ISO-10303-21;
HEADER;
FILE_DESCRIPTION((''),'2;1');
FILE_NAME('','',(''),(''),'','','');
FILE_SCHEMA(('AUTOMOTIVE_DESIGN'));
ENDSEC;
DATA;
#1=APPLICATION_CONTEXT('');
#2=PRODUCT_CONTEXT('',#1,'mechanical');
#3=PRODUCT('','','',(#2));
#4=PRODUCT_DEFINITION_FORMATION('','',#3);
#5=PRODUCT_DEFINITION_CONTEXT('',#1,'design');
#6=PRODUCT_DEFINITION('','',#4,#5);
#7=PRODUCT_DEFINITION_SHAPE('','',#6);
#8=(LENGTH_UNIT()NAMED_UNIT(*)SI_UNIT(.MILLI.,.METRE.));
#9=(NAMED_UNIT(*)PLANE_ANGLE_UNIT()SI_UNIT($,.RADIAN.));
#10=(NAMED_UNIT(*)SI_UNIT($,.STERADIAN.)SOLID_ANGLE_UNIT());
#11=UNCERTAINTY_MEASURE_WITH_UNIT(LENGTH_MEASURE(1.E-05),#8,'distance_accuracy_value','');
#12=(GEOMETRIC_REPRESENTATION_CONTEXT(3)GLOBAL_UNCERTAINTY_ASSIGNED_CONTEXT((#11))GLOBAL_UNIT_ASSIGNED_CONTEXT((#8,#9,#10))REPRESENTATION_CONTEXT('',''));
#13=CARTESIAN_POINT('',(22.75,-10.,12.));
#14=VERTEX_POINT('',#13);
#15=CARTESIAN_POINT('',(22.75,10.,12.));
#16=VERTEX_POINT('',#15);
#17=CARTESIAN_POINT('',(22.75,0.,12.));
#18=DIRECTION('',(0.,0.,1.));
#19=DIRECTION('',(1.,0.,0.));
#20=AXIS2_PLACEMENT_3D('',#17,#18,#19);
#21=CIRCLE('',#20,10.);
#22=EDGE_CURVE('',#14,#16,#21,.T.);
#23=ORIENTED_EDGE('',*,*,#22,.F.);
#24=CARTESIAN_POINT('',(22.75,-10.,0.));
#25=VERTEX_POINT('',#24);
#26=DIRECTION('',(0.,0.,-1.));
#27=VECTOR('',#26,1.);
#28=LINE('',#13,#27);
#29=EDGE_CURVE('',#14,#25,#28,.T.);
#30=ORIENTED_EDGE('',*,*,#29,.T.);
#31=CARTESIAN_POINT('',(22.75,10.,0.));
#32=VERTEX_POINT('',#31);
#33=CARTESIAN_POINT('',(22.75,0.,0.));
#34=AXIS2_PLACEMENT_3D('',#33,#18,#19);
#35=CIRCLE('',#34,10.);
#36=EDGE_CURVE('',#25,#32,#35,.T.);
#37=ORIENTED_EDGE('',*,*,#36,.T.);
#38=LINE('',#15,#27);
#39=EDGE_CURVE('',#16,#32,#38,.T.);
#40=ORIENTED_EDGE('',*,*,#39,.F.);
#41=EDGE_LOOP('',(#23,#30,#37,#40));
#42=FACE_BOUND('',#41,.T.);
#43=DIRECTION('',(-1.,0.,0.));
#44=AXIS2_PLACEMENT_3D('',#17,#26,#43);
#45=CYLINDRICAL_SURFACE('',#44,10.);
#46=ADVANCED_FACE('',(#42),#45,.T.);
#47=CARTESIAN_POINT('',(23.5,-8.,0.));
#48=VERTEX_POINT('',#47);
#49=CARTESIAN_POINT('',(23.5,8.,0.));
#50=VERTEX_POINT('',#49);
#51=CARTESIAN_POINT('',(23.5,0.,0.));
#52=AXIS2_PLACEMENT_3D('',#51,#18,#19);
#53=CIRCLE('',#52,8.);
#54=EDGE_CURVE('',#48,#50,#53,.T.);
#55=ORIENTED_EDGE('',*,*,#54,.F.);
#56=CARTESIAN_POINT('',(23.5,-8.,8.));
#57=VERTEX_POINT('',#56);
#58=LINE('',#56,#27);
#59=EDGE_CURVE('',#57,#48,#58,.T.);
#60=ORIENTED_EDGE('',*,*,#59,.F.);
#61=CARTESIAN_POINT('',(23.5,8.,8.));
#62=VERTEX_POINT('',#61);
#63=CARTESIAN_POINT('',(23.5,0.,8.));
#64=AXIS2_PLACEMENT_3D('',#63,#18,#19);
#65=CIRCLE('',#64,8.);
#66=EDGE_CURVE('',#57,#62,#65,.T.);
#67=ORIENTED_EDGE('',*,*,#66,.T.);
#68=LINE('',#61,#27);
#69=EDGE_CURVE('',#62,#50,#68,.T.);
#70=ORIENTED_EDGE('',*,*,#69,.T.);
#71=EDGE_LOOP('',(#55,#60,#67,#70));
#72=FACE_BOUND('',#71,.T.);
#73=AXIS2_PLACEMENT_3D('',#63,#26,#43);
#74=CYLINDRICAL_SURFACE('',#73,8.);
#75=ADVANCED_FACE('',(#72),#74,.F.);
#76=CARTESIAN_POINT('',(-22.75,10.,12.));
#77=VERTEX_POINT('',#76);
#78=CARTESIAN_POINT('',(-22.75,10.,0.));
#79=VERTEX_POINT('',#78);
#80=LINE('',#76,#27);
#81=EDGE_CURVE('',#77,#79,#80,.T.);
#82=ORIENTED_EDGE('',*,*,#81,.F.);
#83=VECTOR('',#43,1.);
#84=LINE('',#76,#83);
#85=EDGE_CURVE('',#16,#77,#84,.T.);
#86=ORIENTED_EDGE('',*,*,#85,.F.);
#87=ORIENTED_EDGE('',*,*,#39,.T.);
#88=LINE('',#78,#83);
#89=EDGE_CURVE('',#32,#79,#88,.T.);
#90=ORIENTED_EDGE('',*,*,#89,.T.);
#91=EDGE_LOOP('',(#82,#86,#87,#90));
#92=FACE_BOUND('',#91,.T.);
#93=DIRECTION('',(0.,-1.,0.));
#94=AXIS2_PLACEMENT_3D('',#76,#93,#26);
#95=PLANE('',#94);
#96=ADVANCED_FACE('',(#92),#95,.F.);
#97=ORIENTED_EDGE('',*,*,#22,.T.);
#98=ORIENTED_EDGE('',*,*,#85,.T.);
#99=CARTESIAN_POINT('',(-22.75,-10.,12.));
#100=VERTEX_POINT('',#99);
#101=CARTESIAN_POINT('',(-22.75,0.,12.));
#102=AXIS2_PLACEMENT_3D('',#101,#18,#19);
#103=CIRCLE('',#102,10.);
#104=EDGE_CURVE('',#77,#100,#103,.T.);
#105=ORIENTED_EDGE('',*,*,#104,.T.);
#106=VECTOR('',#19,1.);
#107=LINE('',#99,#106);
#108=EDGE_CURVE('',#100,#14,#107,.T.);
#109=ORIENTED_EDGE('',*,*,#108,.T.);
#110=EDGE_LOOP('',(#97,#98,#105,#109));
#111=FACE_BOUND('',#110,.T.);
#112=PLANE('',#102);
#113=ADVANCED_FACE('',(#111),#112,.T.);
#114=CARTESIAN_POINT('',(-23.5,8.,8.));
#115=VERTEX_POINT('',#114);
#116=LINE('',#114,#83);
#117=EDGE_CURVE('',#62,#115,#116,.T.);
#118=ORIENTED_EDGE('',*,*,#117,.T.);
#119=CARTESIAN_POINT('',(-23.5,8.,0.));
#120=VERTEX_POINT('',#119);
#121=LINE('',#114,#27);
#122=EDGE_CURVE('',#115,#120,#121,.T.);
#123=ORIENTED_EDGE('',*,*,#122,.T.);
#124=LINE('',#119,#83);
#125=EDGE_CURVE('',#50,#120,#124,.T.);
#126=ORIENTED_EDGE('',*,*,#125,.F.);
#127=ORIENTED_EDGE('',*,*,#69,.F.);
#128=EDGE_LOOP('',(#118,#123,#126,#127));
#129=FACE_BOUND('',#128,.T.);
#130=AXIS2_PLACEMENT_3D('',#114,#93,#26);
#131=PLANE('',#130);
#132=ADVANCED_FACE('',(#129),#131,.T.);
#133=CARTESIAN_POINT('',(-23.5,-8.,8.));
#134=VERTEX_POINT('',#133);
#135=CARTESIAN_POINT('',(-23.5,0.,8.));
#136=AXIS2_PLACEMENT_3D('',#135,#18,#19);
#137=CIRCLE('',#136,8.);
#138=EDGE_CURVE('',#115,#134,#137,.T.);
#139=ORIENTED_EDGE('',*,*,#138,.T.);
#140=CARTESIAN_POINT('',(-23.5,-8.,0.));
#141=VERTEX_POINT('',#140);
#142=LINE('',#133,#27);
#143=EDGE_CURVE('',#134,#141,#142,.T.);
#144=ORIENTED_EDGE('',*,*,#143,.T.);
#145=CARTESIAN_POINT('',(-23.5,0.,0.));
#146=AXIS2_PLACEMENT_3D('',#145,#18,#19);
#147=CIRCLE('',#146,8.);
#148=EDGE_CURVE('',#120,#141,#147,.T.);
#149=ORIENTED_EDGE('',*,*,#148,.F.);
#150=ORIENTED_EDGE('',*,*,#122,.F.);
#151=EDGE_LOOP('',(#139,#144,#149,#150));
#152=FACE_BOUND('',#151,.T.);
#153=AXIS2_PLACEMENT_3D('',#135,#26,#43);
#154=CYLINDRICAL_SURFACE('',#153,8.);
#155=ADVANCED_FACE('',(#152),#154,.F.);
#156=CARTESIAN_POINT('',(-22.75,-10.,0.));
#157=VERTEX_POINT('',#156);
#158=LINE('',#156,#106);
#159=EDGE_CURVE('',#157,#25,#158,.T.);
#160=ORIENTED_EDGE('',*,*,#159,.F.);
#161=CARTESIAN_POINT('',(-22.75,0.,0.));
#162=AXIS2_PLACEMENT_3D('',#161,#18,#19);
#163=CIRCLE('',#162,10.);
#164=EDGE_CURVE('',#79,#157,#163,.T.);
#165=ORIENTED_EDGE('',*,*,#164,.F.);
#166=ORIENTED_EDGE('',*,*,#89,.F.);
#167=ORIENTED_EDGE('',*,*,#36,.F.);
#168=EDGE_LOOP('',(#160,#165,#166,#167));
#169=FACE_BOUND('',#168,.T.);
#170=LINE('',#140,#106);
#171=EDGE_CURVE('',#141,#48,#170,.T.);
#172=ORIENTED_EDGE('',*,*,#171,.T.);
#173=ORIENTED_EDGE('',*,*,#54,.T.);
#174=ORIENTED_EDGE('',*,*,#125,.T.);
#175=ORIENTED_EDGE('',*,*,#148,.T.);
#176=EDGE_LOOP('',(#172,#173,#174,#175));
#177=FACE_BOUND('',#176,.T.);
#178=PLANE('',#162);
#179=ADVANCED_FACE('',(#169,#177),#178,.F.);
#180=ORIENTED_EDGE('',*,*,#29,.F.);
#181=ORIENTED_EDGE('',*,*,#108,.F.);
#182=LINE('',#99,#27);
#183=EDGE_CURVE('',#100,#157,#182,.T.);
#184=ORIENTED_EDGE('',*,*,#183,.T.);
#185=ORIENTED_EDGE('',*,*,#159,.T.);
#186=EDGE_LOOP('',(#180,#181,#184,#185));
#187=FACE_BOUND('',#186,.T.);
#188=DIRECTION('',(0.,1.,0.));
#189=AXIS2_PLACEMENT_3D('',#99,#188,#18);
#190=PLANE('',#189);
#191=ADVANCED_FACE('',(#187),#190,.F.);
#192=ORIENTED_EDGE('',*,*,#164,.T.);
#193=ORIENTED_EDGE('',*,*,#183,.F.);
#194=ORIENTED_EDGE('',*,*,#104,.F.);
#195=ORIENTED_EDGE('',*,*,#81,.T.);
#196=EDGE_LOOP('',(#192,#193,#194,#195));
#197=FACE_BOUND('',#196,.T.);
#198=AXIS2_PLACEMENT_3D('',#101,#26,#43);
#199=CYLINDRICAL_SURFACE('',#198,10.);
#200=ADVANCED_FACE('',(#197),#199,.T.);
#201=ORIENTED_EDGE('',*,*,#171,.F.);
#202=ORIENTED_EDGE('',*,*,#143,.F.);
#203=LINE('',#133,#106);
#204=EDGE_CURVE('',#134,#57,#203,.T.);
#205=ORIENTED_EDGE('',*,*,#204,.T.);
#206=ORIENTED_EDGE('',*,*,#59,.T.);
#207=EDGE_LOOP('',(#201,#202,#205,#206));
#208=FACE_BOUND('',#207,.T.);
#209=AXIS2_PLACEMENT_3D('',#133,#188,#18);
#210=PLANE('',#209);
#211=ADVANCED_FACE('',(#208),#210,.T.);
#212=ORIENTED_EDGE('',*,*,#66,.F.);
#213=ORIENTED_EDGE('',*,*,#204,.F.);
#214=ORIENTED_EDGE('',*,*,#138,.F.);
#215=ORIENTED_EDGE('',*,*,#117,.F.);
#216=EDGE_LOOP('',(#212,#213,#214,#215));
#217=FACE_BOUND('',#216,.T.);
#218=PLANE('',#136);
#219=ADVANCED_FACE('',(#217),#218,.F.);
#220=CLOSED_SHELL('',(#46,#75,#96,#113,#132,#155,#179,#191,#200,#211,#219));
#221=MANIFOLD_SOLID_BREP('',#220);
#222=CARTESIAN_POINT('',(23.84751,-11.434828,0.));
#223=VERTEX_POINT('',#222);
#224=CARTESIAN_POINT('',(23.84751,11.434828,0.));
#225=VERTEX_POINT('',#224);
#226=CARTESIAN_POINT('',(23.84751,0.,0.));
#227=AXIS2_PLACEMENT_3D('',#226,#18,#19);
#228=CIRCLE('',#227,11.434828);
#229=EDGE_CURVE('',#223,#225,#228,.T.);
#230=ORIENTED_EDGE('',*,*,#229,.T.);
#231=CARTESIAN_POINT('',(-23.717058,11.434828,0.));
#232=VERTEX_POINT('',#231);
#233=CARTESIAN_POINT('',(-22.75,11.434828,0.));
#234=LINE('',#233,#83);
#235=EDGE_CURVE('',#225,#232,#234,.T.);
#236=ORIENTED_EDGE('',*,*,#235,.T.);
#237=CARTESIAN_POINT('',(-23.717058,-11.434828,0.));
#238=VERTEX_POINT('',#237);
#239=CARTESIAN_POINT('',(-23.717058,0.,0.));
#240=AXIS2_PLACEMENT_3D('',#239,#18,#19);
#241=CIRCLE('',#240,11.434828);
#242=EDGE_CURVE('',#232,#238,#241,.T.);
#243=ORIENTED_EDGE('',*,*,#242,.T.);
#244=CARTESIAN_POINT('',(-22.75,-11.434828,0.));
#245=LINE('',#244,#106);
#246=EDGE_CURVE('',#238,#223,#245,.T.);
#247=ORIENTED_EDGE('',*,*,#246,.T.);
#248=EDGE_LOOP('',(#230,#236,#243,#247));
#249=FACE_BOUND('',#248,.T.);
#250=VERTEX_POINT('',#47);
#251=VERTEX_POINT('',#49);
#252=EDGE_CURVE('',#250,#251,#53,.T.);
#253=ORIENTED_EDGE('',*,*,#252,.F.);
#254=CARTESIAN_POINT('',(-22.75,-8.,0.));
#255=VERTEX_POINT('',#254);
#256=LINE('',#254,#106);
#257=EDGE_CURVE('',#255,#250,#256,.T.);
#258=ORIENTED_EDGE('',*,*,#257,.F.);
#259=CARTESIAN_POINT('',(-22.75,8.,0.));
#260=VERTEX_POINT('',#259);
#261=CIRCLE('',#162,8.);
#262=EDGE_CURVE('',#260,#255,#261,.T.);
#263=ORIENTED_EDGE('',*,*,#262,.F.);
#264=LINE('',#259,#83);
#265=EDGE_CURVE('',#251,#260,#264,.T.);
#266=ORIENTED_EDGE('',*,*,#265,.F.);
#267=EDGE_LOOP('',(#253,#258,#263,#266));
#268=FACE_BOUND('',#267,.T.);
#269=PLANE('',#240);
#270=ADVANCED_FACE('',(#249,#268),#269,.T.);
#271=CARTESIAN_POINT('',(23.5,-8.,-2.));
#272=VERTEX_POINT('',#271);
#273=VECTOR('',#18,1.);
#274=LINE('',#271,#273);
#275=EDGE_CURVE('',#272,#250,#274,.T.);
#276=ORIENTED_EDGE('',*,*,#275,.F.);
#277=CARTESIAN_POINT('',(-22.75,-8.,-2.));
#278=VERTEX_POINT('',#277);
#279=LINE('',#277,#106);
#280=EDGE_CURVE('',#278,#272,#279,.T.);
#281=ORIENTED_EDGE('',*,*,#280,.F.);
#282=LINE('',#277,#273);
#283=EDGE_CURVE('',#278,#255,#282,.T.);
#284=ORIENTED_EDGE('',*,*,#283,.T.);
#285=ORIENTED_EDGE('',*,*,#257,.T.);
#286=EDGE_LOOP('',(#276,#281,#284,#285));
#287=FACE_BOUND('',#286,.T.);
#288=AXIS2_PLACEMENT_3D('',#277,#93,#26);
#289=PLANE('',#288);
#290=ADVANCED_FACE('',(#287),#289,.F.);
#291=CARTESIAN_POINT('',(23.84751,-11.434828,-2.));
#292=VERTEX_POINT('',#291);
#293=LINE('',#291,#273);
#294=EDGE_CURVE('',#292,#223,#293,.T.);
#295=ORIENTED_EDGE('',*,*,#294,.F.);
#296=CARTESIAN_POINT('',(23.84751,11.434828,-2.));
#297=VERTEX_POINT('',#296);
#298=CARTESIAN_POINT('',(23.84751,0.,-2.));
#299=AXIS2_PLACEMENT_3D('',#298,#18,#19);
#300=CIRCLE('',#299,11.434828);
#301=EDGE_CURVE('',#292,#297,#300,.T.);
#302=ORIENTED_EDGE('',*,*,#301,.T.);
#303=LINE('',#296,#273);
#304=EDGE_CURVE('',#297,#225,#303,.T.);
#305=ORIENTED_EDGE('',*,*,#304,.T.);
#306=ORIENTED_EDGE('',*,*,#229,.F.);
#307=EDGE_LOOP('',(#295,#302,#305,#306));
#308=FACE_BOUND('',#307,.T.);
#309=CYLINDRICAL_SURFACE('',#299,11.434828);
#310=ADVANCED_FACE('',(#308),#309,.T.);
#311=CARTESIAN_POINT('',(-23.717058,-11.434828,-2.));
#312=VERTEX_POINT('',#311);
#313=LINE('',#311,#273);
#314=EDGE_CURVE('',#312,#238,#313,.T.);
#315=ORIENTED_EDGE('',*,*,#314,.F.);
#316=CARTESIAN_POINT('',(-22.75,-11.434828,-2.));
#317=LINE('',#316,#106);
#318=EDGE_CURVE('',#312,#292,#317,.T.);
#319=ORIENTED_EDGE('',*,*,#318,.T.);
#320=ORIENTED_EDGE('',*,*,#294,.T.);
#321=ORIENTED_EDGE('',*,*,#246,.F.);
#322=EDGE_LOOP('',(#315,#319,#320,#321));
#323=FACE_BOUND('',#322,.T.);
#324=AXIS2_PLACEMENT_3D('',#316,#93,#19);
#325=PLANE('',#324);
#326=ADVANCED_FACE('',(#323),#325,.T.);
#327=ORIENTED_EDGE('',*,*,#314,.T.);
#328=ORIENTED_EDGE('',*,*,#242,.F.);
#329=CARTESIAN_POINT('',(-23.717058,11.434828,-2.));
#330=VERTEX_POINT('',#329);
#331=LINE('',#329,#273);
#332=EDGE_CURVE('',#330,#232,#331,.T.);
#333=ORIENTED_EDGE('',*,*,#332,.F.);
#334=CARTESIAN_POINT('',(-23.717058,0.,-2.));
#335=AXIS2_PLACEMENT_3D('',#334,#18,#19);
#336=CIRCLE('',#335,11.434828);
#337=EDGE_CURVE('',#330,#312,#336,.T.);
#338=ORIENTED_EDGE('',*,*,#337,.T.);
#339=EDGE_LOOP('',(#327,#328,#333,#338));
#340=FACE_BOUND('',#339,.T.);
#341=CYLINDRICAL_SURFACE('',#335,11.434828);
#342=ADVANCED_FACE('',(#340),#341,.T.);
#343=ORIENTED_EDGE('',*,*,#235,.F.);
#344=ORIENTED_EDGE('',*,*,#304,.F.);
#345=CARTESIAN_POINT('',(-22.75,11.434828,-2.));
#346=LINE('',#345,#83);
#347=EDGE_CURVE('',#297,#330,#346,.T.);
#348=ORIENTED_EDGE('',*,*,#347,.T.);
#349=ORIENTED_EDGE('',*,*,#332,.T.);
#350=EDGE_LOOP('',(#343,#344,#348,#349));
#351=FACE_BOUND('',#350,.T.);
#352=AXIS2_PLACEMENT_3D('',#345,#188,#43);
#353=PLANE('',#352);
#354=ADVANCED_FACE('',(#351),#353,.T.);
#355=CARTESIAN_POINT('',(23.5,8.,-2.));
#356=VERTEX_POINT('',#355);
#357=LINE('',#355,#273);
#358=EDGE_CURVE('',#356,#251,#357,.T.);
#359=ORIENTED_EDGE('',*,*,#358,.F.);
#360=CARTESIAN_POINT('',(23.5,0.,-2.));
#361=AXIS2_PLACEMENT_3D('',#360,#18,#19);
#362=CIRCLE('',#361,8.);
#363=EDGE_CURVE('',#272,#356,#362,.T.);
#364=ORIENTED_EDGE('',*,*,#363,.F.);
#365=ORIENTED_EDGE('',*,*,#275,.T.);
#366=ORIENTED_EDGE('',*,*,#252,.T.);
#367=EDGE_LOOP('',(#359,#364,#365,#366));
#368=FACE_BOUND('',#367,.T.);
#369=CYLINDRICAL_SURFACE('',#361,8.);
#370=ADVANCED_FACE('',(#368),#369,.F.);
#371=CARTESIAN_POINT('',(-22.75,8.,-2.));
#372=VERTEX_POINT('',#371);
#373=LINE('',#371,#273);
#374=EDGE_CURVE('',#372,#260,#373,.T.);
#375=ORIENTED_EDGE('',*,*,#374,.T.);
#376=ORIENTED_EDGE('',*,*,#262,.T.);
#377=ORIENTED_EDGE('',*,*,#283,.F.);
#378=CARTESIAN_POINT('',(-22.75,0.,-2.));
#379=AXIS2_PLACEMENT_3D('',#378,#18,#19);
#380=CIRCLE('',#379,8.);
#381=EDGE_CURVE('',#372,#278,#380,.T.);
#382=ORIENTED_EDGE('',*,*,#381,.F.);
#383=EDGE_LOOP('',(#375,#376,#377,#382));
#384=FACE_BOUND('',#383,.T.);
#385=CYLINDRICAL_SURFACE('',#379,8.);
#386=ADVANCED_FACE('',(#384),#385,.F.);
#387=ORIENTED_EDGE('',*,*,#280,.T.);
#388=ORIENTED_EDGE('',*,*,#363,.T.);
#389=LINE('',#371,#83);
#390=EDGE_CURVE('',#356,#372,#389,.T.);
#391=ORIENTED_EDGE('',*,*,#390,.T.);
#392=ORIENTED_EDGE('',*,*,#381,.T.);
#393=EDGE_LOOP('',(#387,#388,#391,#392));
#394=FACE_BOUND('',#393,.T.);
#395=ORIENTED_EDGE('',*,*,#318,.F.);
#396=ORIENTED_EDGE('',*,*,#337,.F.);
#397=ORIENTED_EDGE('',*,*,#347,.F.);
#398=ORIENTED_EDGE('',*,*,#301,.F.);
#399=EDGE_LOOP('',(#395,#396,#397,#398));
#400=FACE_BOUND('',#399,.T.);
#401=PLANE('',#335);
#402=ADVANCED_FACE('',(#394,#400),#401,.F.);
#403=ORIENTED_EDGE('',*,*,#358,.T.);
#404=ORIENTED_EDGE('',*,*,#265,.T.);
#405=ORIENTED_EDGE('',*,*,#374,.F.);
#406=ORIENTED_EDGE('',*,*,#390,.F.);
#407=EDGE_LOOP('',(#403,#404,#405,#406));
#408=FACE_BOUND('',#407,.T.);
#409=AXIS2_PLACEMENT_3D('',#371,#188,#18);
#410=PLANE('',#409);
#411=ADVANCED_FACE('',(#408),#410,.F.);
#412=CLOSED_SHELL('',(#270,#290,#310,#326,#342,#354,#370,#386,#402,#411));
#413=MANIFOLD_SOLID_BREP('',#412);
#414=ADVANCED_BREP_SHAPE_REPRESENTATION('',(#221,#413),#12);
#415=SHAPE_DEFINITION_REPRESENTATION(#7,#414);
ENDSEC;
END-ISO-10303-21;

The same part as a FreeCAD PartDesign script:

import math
import FreeCAD as App
import Part
import Sketcher

V = App.Vector
Q = App.Units.Quantity

doc = App.newDocument("Part")
body = doc.addObject("PartDesign::Body", "Body")

# Sketch on XY plane
sketch1 = body.newObject("Sketcher::SketchObject", "Sketch")
sketch1.AttachmentSupport = (doc.getObject("XY_Plane"), [""])
sketch1.MapMode = "FlatFace"
sketch1.addGeometry(Part.LineSegment(V(23, 10, 0), V(-23, 10, 0)), False)
sketch1.addGeometry(Part.ArcOfCircle(Part.Circle(V(-23, 0, 0), V(0, 0, 1), 10), math.radians(90), math.radians(270)), False)
sketch1.addGeometry(Part.LineSegment(V(-23, -10, 0), V(23, -10, 0)), False)
sketch1.addGeometry(Part.ArcOfCircle(Part.Circle(V(23, 0, 0), V(0, 0, 1), 10), math.radians(-90), math.radians(90)), False)
sketch1.addConstraint(Sketcher.Constraint("Tangent", 0, 2, 1, 1))
sketch1.addConstraint(Sketcher.Constraint("Tangent", 1, 2, 2, 1))
sketch1.addConstraint(Sketcher.Constraint("Tangent", 2, 2, 3, 1))
sketch1.addConstraint(Sketcher.Constraint("Tangent", 3, 2, 0, 1))
sketch1.addConstraint(Sketcher.Constraint("Horizontal", 0))
sketch1.addConstraint(Sketcher.Constraint("Horizontal", 2))
sketch1.addConstraint(Sketcher.Constraint("Symmetric", 1, 3, 3, 3, -1, 1))
sketch1.addConstraint(Sketcher.Constraint("Radius", 1, Q("10 mm")))
sketch1.addConstraint(Sketcher.Constraint("DistanceX", 0, 2, 0, 1, Q("45.5 mm")))
pad1 = body.newObject("PartDesign::Pad", "Pad")
pad1.Profile = sketch1
pad1.Length = 12

# Sketch on XY plane
sketch2 = body.newObject("Sketcher::SketchObject", "Sketch001")
sketch2.AttachmentSupport = (doc.getObject("XY_Plane"), [""])
sketch2.MapMode = "FlatFace"
sketch2.addGeometry(Part.LineSegment(V(24, 8, 0), V(-24, 8, 0)), False)
sketch2.addGeometry(Part.ArcOfCircle(Part.Circle(V(-24, 0, 0), V(0, 0, 1), 8), math.radians(90), math.radians(270)), False)
sketch2.addGeometry(Part.LineSegment(V(-24, -8, 0), V(24, -8, 0)), False)
sketch2.addGeometry(Part.ArcOfCircle(Part.Circle(V(24, 0, 0), V(0, 0, 1), 8), math.radians(-90), math.radians(90)), False)
sketch2.addConstraint(Sketcher.Constraint("Tangent", 0, 2, 1, 1))
sketch2.addConstraint(Sketcher.Constraint("Tangent", 1, 2, 2, 1))
sketch2.addConstraint(Sketcher.Constraint("Tangent", 2, 2, 3, 1))
sketch2.addConstraint(Sketcher.Constraint("Tangent", 3, 2, 0, 1))
sketch2.addConstraint(Sketcher.Constraint("Horizontal", 0))
sketch2.addConstraint(Sketcher.Constraint("Horizontal", 2))
sketch2.addConstraint(Sketcher.Constraint("Symmetric", 1, 3, 3, 3, -1, 1))
sketch2.addConstraint(Sketcher.Constraint("Radius", 1, Q("8 mm")))
sketch2.addConstraint(Sketcher.Constraint("DistanceX", 0, 2, 0, 1, Q("47 mm")))
pocket1 = body.newObject("PartDesign::Pocket", "Pocket")
pocket1.Profile = sketch2
pocket1.Length = 8
pocket1.Reversed = True
body2 = doc.addObject("PartDesign::Body", "Body001")

# Sketch on XY plane
sketch3 = body2.newObject("Sketcher::SketchObject", "Sketch002")
sketch3.AttachmentSupport = (doc.getObject("XY_Plane001"), [""])
sketch3.MapMode = "FlatFace"
sketch3.addGeometry(Part.LineSegment(V(24, 11, 0), V(-24, 11, 0)), False)
sketch3.addGeometry(Part.ArcOfCircle(Part.Circle(V(-24, 0, 0), V(0, 0, 1), 11), math.radians(90), math.radians(270)), False)
sketch3.addGeometry(Part.LineSegment(V(-24, -11, 0), V(24, -11, 0)), False)
sketch3.addGeometry(Part.ArcOfCircle(Part.Circle(V(24, 0, 0), V(0, 0, 1), 11), math.radians(-90), math.radians(90)), False)
sketch3.addGeometry(Part.LineSegment(V(-23, 8, 0), V(24, 8, 0)), False)
sketch3.addGeometry(Part.ArcOfCircle(Part.Circle(V(24, 0, 0), V(0, 0, 1), 8), math.radians(-90), math.radians(90)), False)
sketch3.addGeometry(Part.LineSegment(V(24, -8, 0), V(-23, -8, 0)), False)
sketch3.addGeometry(Part.ArcOfCircle(Part.Circle(V(-23, 0, 0), V(0, 0, 1), 8), math.radians(90), math.radians(270)), False)
sketch3.addConstraint(Sketcher.Constraint("Tangent", 0, 2, 1, 1))
sketch3.addConstraint(Sketcher.Constraint("Tangent", 1, 2, 2, 1))
sketch3.addConstraint(Sketcher.Constraint("Tangent", 2, 2, 3, 1))
sketch3.addConstraint(Sketcher.Constraint("Tangent", 3, 2, 0, 1))
sketch3.addConstraint(Sketcher.Constraint("Tangent", 4, 2, 5, 2))
sketch3.addConstraint(Sketcher.Constraint("Tangent", 5, 1, 6, 1))
sketch3.addConstraint(Sketcher.Constraint("Tangent", 6, 2, 7, 2))
sketch3.addConstraint(Sketcher.Constraint("Tangent", 7, 1, 4, 1))
sketch3.addConstraint(Sketcher.Constraint("Horizontal", 0))
sketch3.addConstraint(Sketcher.Constraint("Horizontal", 2))
sketch3.addConstraint(Sketcher.Constraint("Horizontal", 4))
sketch3.addConstraint(Sketcher.Constraint("Horizontal", 6))
sketch3.addConstraint(Sketcher.Constraint("PointOnObject", 1, 3, -1))
sketch3.addConstraint(Sketcher.Constraint("PointOnObject", 5, 3, -1))
sketch3.addConstraint(Sketcher.Constraint("Radius", 5, Q("8 mm")))
sketch3.addConstraint(Sketcher.Constraint("DistanceX", 4, 1, 4, 2, Q("46.25 mm")))
sketch3.addConstraint(Sketcher.Constraint("DistanceX", -1, 1, 5, 3, Q("23.5 mm")))
sketch3.addConstraint(Sketcher.Constraint("Radius", 1, Q("11.434828 mm")))
sketch3.addConstraint(Sketcher.Constraint("DistanceX", 0, 2, 0, 1, Q("47.564568 mm")))
sketch3.addConstraint(Sketcher.Constraint("DistanceX", 1, 3, -1, 1, Q("23.717058 mm")))
pad2 = body2.newObject("PartDesign::Pad", "Pad001")
pad2.Profile = sketch3
pad2.Length = 2
pad2.Reversed = True

doc.recompute()
